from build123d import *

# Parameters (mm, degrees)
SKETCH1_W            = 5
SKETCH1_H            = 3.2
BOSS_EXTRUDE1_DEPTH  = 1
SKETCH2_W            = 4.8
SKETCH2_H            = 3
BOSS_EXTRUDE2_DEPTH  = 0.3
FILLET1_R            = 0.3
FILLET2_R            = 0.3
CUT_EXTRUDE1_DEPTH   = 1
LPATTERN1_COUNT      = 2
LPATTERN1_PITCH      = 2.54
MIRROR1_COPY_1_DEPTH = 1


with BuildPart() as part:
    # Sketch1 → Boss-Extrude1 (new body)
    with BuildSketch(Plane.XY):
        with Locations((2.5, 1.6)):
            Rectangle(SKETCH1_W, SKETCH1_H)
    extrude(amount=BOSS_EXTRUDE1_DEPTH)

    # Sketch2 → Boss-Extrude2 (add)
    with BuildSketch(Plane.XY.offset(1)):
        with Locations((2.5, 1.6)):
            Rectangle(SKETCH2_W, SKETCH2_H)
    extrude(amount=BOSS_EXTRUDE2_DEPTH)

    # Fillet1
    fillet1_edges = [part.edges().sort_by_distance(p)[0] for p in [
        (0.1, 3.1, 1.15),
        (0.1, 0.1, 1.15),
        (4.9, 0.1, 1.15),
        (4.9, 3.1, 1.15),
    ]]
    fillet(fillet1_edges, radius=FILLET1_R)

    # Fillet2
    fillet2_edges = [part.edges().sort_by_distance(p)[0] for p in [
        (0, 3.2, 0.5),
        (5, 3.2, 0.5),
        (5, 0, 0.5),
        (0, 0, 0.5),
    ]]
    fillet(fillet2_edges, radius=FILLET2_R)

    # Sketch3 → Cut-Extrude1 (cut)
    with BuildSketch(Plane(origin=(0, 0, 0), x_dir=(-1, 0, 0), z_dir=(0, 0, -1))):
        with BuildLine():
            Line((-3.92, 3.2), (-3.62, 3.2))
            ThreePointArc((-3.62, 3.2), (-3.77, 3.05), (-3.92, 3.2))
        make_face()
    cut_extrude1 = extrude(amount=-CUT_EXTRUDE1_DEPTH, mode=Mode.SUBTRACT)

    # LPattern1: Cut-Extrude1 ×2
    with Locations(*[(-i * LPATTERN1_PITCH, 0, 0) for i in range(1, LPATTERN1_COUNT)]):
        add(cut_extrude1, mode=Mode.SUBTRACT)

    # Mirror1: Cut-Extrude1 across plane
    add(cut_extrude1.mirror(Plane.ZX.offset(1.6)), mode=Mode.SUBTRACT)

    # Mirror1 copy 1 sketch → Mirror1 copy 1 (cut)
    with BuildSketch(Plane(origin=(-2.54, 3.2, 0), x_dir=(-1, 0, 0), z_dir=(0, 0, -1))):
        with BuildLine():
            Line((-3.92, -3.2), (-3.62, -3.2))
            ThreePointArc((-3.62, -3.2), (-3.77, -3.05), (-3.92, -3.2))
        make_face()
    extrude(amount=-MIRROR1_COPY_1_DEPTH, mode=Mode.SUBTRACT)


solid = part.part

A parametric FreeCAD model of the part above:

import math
import FreeCAD as App
import Part
import Sketcher

V = App.Vector


def edges_at(feature, points):
    """Names of the edges that pass closest to the given points."""
    edges = feature.Shape.Edges
    near = lambda p: min(range(len(edges)), key=lambda i: edges[i].distToShape(Part.Vertex(*p))[0])
    return sorted({f"Edge{near(p) + 1}" for p in points})

doc = App.newDocument("Part")
body = doc.addObject("PartDesign::Body", "Body")

sketch1 = body.newObject("Sketcher::SketchObject", "Sketch")
sketch1.AttachmentSupport = (doc.getObject("XY_Plane"), [""])
sketch1.MapMode = "FlatFace"
sketch1.addGeometry(Part.LineSegment(V(0, 3.2, 0), V(0, 0, 0)), False)
sketch1.addGeometry(Part.LineSegment(V(0, 0, 0), V(5, 0, 0)), False)
sketch1.addGeometry(Part.LineSegment(V(5, 0, 0), V(5, 3.2, 0)), False)
sketch1.addGeometry(Part.LineSegment(V(5, 3.2, 0), V(0, 3.2, 0)), False)
sketch1.addConstraint(Sketcher.Constraint("Coincident", 0, 2, 1, 1))
sketch1.addConstraint(Sketcher.Constraint("Coincident", 1, 2, 2, 1))
sketch1.addConstraint(Sketcher.Constraint("Coincident", 2, 2, 3, 1))
sketch1.addConstraint(Sketcher.Constraint("Coincident", 3, 2, 0, 1))
sketch1.addConstraint(Sketcher.Constraint("Vertical", 0))
sketch1.addConstraint(Sketcher.Constraint("Horizontal", 1))
sketch1.addConstraint(Sketcher.Constraint("Vertical", 2))
sketch1.addConstraint(Sketcher.Constraint("Horizontal", 3))
sketch1.addConstraint(Sketcher.Constraint("Coincident", 0, 2, -1, 1))
sketch1.addConstraint(Sketcher.Constraint("DistanceX", 1, 1, 1, 2, 5.0))
sketch1.addConstraint(Sketcher.Constraint("DistanceY", 0, 2, 0, 1, 3.2))
pad1 = body.newObject("PartDesign::Pad", "Pad")
pad1.Profile = sketch1
pad1.Length = 1

sketch2 = body.newObject("Sketcher::SketchObject", "Sketch001")
sketch2.AttachmentSupport = (doc.getObject("XY_Plane"), [""])
sketch2.MapMode = "FlatFace"
sketch2.AttachmentOffset = App.Placement(V(0, 0, 1), App.Rotation())
sketch2.addGeometry(Part.LineSegment(V(0.1, 3.1, 0), V(0.1, 0.1, 0)), False)
sketch2.addGeometry(Part.LineSegment(V(0.1, 0.1, 0), V(4.9, 0.1, 0)), False)
sketch2.addGeometry(Part.LineSegment(V(4.9, 0.1, 0), V(4.9, 3.1, 0)), False)
sketch2.addGeometry(Part.LineSegment(V(4.9, 3.1, 0), V(0.1, 3.1, 0)), False)
sketch2.addConstraint(Sketcher.Constraint("Coincident", 0, 2, 1, 1))
sketch2.addConstraint(Sketcher.Constraint("Coincident", 1, 2, 2, 1))
sketch2.addConstraint(Sketcher.Constraint("Coincident", 2, 2, 3, 1))
sketch2.addConstraint(Sketcher.Constraint("Coincident", 3, 2, 0, 1))
sketch2.addConstraint(Sketcher.Constraint("Vertical", 0))
sketch2.addConstraint(Sketcher.Constraint("Horizontal", 1))
sketch2.addConstraint(Sketcher.Constraint("Vertical", 2))
sketch2.addConstraint(Sketcher.Constraint("Horizontal", 3))
sketch2.addConstraint(Sketcher.Constraint("DistanceY", 0, 2, 0, 1, 3.0))
sketch2.addConstraint(Sketcher.Constraint("DistanceX", 1, 1, 1, 2, 4.8))
sketch2.addConstraint(Sketcher.Constraint("DistanceX", -1, 1, 0, 2, 0.1))
sketch2.addConstraint(Sketcher.Constraint("DistanceY", -1, 1, 0, 2, 0.1))
pad2 = body.newObject("PartDesign::Pad", "Pad001")
pad2.Profile = sketch2
pad2.Length = 0.3
doc.recompute()

fillet = body.newObject("PartDesign::Fillet", "Fillet")
fillet.Base = (pad2, edges_at(pad2, [
    (0.1, 3.1, 1.15),
    (0.1, 0.1, 1.15),
    (4.9, 0.1, 1.15),
    (4.9, 3.1, 1.15),
]))
fillet.Radius = 0.3
doc.recompute()

fillet2 = body.newObject("PartDesign::Fillet", "Fillet001")
fillet2.Base = (fillet, edges_at(fillet, [
    (0, 3.2, 0.5),
    (5, 3.2, 0.5),
    (5, 0, 0.5),
    (0, 0, 0.5),
]))
fillet2.Radius = 0.3

sketch3 = body.newObject("Sketcher::SketchObject", "Sketch002")
sketch3.AttachmentSupport = (doc.getObject("XY_Plane"), [""])
sketch3.MapMode = "FlatFace"
sketch3.addGeometry(Part.LineSegment(V(3.62, 3.2, 0), V(3.92, 3.2, 0)), False)
sketch3.addGeometry(Part.ArcOfCircle(Part.Circle(V(3.77, 3.2, 0), V(0, 0, 1), 0.15), math.radians(180), math.radians(360)), False)
sketch3.addConstraint(Sketcher.Constraint("Coincident", 0, 1, 1, 1))
sketch3.addConstraint(Sketcher.Constraint("Coincident", 1, 2, 0, 2))
sketch3.addConstraint(Sketcher.Constraint("Horizontal", 0))
sketch3.addConstraint(Sketcher.Constraint("Horizontal", 1, 3, 0, 1))
sketch3.addConstraint(Sketcher.Constraint("Radius", 1, 0.15))
sketch3.addConstraint(Sketcher.Constraint("DistanceY", -1, 1, 1, 3, 3.2))
sketch3.addConstraint(Sketcher.Constraint("DistanceX", -1, 1, 1, 3, 3.77))
pocket1 = body.newObject("PartDesign::Pocket", "Pocket")
pocket1.Profile = sketch3
pocket1.Length = 1
pocket1.Reversed = True
doc.recompute()

linearpattern = body.newObject("PartDesign::LinearPattern", "LinearPattern")
linearpattern.Originals = [pocket1]
linearpattern.Direction = (doc.getObject("X_Axis"), [""])
linearpattern.Mode = "offset"
linearpattern.Offset = 2.54
linearpattern.Occurrences = 2
linearpattern.Reversed = True
body.Tip = linearpattern
doc.recompute()

datumplane = body.newObject("PartDesign::Plane", "DatumPlane")
datumplane.AttachmentSupport = (doc.getObject("XZ_Plane"), [""])
datumplane.MapMode = "FlatFace"
datumplane.AttachmentOffset = App.Placement(V(0, 0, -1.6), App.Rotation())
mirrored = body.newObject("PartDesign::Mirrored", "Mirrored")
mirrored.Originals = [pocket1]
mirrored.MirrorPlane = (datumplane, [""])
body.Tip = mirrored

sketch4 = body.newObject("Sketcher::SketchObject", "Sketch003")
sketch4.AttachmentSupport = (doc.getObject("XY_Plane"), [""])
sketch4.MapMode = "FlatFace"
sketch4.addGeometry(Part.LineSegment(V(1.38, 0, 0), V(1.08, 0, 0)), False)
sketch4.addGeometry(Part.ArcOfCircle(Part.Circle(V(1.23, 0, 0), V(0, 0, 1), 0.15), math.radians(0), math.radians(180)), False)
sketch4.addConstraint(Sketcher.Constraint("Coincident", 0, 1, 1, 1))
sketch4.addConstraint(Sketcher.Constraint("Coincident", 1, 2, 0, 2))
sketch4.addConstraint(Sketcher.Constraint("Horizontal", 0))
sketch4.addConstraint(Sketcher.Constraint("PointOnObject", 1, 3, -1))
sketch4.addConstraint(Sketcher.Constraint("PointOnObject", 0, 1, -1))
sketch4.addConstraint(Sketcher.Constraint("Radius", 1, 0.15))
sketch4.addConstraint(Sketcher.Constraint("DistanceX", -1, 1, 1, 3, 1.23))
pocket2 = body.newObject("PartDesign::Pocket", "Pocket001")
pocket2.Profile = sketch4
pocket2.Length = 1
pocket2.Reversed = True

doc.recompute()
